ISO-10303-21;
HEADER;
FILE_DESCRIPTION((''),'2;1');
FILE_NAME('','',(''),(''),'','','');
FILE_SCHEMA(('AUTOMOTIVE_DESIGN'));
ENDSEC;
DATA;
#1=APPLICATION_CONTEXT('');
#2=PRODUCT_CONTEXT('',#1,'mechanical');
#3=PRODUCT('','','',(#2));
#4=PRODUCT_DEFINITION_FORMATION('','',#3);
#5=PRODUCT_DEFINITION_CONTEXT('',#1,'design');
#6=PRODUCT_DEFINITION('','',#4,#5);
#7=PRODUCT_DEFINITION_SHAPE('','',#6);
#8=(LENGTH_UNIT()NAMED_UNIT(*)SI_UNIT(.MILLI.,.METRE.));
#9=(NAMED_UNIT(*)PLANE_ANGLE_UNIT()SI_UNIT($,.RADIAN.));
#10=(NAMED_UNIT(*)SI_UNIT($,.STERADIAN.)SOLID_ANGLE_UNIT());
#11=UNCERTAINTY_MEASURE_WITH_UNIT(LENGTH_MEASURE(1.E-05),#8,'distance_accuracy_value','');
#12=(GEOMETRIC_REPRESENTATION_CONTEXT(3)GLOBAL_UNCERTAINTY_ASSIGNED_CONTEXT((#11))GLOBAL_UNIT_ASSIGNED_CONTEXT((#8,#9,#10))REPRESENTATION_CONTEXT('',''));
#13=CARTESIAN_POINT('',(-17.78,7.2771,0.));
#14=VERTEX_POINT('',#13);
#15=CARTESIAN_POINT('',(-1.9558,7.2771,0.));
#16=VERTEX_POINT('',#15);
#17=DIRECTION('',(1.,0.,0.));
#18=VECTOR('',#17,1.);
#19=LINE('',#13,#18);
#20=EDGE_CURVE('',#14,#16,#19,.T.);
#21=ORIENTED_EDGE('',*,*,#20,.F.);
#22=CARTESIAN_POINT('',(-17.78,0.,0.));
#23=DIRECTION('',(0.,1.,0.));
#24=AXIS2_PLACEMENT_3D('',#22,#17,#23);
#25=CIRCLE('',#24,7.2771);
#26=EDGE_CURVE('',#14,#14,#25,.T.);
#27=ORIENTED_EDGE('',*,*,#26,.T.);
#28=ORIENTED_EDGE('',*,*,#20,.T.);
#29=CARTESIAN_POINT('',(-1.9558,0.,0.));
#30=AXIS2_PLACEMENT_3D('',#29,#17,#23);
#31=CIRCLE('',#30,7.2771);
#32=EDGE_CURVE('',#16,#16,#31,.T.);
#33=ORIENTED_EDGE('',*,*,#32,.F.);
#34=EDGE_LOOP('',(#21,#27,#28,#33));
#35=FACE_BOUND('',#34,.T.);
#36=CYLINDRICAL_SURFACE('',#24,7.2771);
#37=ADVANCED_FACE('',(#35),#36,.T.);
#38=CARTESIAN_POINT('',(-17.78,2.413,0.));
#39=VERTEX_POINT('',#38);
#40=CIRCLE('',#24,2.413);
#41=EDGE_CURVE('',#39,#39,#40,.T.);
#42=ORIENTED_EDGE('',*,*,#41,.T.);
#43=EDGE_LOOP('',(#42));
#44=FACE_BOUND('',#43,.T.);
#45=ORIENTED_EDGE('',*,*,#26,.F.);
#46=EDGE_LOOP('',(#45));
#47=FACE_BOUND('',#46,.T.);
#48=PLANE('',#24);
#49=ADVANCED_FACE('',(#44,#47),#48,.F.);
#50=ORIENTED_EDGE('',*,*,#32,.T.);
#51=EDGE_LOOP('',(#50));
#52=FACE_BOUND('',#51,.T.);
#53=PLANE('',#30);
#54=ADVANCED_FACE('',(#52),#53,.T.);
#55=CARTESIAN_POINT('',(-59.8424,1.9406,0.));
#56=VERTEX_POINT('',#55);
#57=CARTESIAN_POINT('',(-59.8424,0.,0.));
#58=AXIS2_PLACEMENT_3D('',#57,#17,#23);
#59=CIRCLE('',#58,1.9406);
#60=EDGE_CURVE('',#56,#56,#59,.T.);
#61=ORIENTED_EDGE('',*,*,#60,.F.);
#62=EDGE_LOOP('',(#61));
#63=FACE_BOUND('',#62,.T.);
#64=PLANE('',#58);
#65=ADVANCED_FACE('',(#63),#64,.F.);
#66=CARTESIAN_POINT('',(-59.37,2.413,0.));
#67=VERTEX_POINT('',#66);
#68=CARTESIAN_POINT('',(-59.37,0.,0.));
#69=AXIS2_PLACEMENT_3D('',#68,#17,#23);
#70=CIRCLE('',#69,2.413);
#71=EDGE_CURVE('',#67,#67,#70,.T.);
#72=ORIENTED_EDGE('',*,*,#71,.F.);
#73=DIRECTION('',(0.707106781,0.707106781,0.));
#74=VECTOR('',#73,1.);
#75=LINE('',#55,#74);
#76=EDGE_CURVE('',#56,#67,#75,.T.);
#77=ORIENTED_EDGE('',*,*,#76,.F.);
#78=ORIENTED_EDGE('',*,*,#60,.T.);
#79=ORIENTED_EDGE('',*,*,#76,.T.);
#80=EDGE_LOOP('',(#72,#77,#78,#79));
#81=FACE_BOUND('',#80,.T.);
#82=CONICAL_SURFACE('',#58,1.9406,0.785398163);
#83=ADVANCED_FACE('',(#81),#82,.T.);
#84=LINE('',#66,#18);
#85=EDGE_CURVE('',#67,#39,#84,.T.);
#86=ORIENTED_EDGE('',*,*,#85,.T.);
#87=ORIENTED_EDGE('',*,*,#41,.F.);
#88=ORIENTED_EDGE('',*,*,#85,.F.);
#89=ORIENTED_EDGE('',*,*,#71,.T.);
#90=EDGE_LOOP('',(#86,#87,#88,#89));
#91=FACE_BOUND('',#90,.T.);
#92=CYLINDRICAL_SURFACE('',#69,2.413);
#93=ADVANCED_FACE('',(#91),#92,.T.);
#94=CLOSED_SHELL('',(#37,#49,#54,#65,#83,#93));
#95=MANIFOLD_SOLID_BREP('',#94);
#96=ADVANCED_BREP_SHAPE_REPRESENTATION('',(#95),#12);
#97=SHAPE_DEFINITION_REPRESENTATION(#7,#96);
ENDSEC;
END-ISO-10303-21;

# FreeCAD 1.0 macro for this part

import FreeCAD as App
import Part
import Sketcher
Q = App.Units.Quantity

doc = App.newDocument("Part")
params = doc.addObject("Spreadsheet::Sheet", "Params")
for row, (alias, value) in enumerate([
    ("sketch1_width", "1.981 in"),
    ("sketch1_height", "0.095 in"),
    ("revolution_angle", "360 deg"),
    ("sketch2_width", "0.623 in"),
    ("revolution2_angle", "360 deg"),
], start=1):
    params.set(f"A{row}", alias)
    params.set(f"B{row}", "=" + value)
    params.setAlias(f"B{row}", alias)

body = doc.addObject("PartDesign::Body", "Body")

# Sketch on XY plane
sketch1 = body.newObject("Sketcher::SketchObject", "Sketch")
sketch1.AttachmentSupport = (doc.getObject("XY_Plane"), [""])
sketch1.MapMode = "FlatFace"
sketch1.addGeometry(Part.LineSegment(App.Vector(-59.8424, 0, 0), App.Vector(-9.525, 0, 0)), False)
sketch1.addGeometry(Part.LineSegment(App.Vector(-9.525, 0, 0), App.Vector(-9.525, 2.413, 0)), False)
sketch1.addGeometry(Part.LineSegment(App.Vector(-9.525, 2.413, 0), App.Vector(-59.37, 2.413, 0)), False)
sketch1.addGeometry(Part.LineSegment(App.Vector(-59.37, 2.413, 0), App.Vector(-59.8424, 1.9406, 0)), False)
sketch1.addGeometry(Part.LineSegment(App.Vector(-59.8424, 1.9406, 0), App.Vector(-59.8424, 0, 0)), False)
sketch1.addConstraint(Sketcher.Constraint("Coincident", 0, 2, 1, 1))
sketch1.addConstraint(Sketcher.Constraint("Coincident", 1, 2, 2, 1))
sketch1.addConstraint(Sketcher.Constraint("Coincident", 2, 2, 3, 1))
sketch1.addConstraint(Sketcher.Constraint("Coincident", 3, 2, 4, 1))
sketch1.addConstraint(Sketcher.Constraint("Coincident", 4, 2, 0, 1))
sketch1.addConstraint(Sketcher.Constraint("Horizontal", 0))
sketch1.addConstraint(Sketcher.Constraint("Vertical", 1))
sketch1.addConstraint(Sketcher.Constraint("Horizontal", 2))
sketch1.addConstraint(Sketcher.Constraint("Vertical", 4))
sketch1.addConstraint(Sketcher.Constraint("PointOnObject", 0, 2, -1))
sketch1.addConstraint(Sketcher.Constraint("Angle", 3, Q("-135 deg")))
sketch1.addConstraint(Sketcher.Constraint("DistanceX", 0, 1, 0, 2, Q("1.981 in")))
sketch1.addConstraint(Sketcher.Constraint("DistanceY", 1, 1, 1, 2, Q("0.095 in")))
sketch1.addConstraint(Sketcher.Constraint("DistanceX", 2, 2, 2, 1, Q("1.9624 in")))
sketch1.addConstraint(Sketcher.Constraint("DistanceX", 0, 2, -1, 1, Q("0.375 in")))
sketch1.setExpression("Constraints[11]", "Params.sketch1_width")
sketch1.setExpression("Constraints[12]", "Params.sketch1_height")
revolution = body.newObject("PartDesign::Revolution", "Revolution")
revolution.Profile = sketch1
revolution.ReferenceAxis = (sketch1, ["H_Axis"])
revolution.setExpression("Angle", "Params.revolution_angle")

# Sketch on XY plane
sketch2 = body.newObject("Sketcher::SketchObject", "Sketch001")
sketch2.AttachmentSupport = (doc.getObject("XY_Plane"), [""])
sketch2.MapMode = "FlatFace"
sketch2.addGeometry(Part.LineSegment(App.Vector(-17.78, 0, 0), App.Vector(-1.9558, 0, 0)), False)
sketch2.addGeometry(Part.LineSegment(App.Vector(-1.9558, 0, 0), App.Vector(-1.9558, 7.2771, 0)), False)
sketch2.addGeometry(Part.LineSegment(App.Vector(-1.9558, 7.2771, 0), App.Vector(-17.78, 7.2771, 0)), False)
sketch2.addGeometry(Part.LineSegment(App.Vector(-17.78, 7.2771, 0), App.Vector(-17.78, 0, 0)), False)
sketch2.addConstraint(Sketcher.Constraint("Coincident", 0, 2, 1, 1))
sketch2.addConstraint(Sketcher.Constraint("Coincident", 1, 2, 2, 1))
sketch2.addConstraint(Sketcher.Constraint("Coincident", 2, 2, 3, 1))
sketch2.addConstraint(Sketcher.Constraint("Coincident", 3, 2, 0, 1))
sketch2.addConstraint(Sketcher.Constraint("Horizontal", 0))
sketch2.addConstraint(Sketcher.Constraint("Vertical", 1))
sketch2.addConstraint(Sketcher.Constraint("Horizontal", 2))
sketch2.addConstraint(Sketcher.Constraint("Vertical", 3))
sketch2.addConstraint(Sketcher.Constraint("PointOnObject", 0, 2, -1))
sketch2.addConstraint(Sketcher.Constraint("DistanceX", 2, 2, -1, 1, Q("0.7 in")))
sketch2.addConstraint(Sketcher.Constraint("DistanceX", 0, 1, 0, 2, Q("0.623 in")))
sketch2.addConstraint(Sketcher.Constraint("DistanceY", 1, 1, 1, 2, Q("0.2865 in")))
sketch2.setExpression("Constraints[10]", "Params.sketch2_width")
revolution2 = body.newObject("PartDesign::Revolution", "Revolution001")
revolution2.Profile = sketch2
revolution2.ReferenceAxis = (sketch2, ["H_Axis"])
revolution2.setExpression("Angle", "Params.revolution2_angle")

doc.recompute()
